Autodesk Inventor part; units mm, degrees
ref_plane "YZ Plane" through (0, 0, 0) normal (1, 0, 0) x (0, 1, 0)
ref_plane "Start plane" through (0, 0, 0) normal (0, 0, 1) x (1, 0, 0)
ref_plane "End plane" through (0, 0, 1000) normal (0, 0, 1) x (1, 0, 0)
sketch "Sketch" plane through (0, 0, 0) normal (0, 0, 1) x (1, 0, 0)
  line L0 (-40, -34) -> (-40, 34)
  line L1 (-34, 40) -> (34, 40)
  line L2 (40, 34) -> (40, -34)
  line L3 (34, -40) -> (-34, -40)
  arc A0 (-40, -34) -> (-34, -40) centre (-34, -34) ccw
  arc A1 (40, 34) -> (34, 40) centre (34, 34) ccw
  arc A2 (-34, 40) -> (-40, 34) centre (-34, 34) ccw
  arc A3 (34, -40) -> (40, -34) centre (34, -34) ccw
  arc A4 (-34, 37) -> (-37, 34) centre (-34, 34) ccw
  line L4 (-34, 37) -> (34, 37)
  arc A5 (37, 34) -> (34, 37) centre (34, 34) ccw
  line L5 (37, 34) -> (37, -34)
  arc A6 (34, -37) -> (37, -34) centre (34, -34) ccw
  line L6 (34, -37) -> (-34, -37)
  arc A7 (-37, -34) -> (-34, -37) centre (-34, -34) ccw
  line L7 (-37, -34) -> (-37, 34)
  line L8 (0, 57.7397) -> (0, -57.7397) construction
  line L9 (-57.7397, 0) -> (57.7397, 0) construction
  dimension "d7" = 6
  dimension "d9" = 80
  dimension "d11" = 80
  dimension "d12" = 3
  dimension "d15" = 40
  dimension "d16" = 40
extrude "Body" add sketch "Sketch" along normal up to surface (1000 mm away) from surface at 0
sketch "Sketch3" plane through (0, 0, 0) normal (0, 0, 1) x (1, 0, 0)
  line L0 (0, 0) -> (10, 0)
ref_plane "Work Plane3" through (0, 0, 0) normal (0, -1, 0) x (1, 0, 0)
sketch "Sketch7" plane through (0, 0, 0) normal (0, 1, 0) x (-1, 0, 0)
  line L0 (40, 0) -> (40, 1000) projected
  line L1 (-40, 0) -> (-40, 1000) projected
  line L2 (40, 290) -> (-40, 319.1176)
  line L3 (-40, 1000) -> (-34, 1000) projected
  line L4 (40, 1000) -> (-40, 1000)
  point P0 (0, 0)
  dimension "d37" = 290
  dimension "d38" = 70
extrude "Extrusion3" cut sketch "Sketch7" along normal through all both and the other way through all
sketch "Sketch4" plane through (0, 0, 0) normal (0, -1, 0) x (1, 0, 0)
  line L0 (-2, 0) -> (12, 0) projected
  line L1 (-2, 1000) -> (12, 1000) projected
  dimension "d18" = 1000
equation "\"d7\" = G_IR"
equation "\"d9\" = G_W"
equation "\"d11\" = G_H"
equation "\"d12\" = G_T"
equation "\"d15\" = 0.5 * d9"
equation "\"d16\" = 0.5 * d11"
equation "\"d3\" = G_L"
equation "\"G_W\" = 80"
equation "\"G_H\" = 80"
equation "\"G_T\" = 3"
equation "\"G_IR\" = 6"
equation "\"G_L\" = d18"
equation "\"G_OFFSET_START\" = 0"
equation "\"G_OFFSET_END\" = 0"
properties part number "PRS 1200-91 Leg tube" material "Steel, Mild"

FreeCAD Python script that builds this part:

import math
import FreeCAD as App
import Part
import Sketcher
Q = App.Units.Quantity

doc = App.newDocument("Part")
body = doc.addObject("PartDesign::Body", "Body")

# Sketch on XY plane
sketch1 = body.newObject("Sketcher::SketchObject", "Sketch")
sketch1.AttachmentSupport = (doc.getObject("XY_Plane"), [""])
sketch1.MapMode = "FlatFace"
sketch1.addGeometry(Part.LineSegment(App.Vector(-40, 34, 0), App.Vector(-40, -34, 0)), False)
sketch1.addGeometry(Part.ArcOfCircle(Part.Circle(App.Vector(-34, -34, 0), App.Vector(0, 0, 1), 6), math.radians(180), math.radians(270)), False)
sketch1.addGeometry(Part.LineSegment(App.Vector(-34, -40, 0), App.Vector(34, -40, 0)), False)
sketch1.addGeometry(Part.ArcOfCircle(Part.Circle(App.Vector(34, -34, 0), App.Vector(0, 0, 1), 6), math.radians(-90), math.radians(0)), False)
sketch1.addGeometry(Part.LineSegment(App.Vector(40, -34, 0), App.Vector(40, 34, 0)), False)
sketch1.addGeometry(Part.ArcOfCircle(Part.Circle(App.Vector(34, 34, 0), App.Vector(0, 0, 1), 6), math.radians(0), math.radians(90)), False)
sketch1.addGeometry(Part.LineSegment(App.Vector(34, 40, 0), App.Vector(-34, 40, 0)), False)
sketch1.addGeometry(Part.ArcOfCircle(Part.Circle(App.Vector(-34, 34, 0), App.Vector(0, 0, 1), 6), math.radians(90), math.radians(180)), False)
sketch1.addGeometry(Part.ArcOfCircle(Part.Circle(App.Vector(-34, 34, 0), App.Vector(0, 0, 1), 3), math.radians(90), math.radians(180)), False)
sketch1.addGeometry(Part.LineSegment(App.Vector(-34, 37, 0), App.Vector(34, 37, 0)), False)
sketch1.addGeometry(Part.ArcOfCircle(Part.Circle(App.Vector(34, 34, 0), App.Vector(0, 0, 1), 3), math.radians(0), math.radians(90)), False)
sketch1.addGeometry(Part.LineSegment(App.Vector(37, 34, 0), App.Vector(37, -34, 0)), False)
sketch1.addGeometry(Part.ArcOfCircle(Part.Circle(App.Vector(34, -34, 0), App.Vector(0, 0, 1), 3), math.radians(-90), math.radians(0)), False)
sketch1.addGeometry(Part.LineSegment(App.Vector(34, -37, 0), App.Vector(-34, -37, 0)), False)
sketch1.addGeometry(Part.ArcOfCircle(Part.Circle(App.Vector(-34, -34, 0), App.Vector(0, 0, 1), 3), math.radians(180), math.radians(270)), False)
sketch1.addGeometry(Part.LineSegment(App.Vector(-37, -34, 0), App.Vector(-37, 34, 0)), False)
sketch1.addConstraint(Sketcher.Constraint("Tangent", 0, 2, 1, 1))
sketch1.addConstraint(Sketcher.Constraint("Tangent", 1, 2, 2, 1))
sketch1.addConstraint(Sketcher.Constraint("Tangent", 2, 2, 3, 1))
sketch1.addConstraint(Sketcher.Constraint("Tangent", 3, 2, 4, 1))
sketch1.addConstraint(Sketcher.Constraint("Tangent", 4, 2, 5, 1))
sketch1.addConstraint(Sketcher.Constraint("Tangent", 5, 2, 6, 1))
sketch1.addConstraint(Sketcher.Constraint("Tangent", 6, 2, 7, 1))
sketch1.addConstraint(Sketcher.Constraint("Tangent", 7, 2, 0, 1))
sketch1.addConstraint(Sketcher.Constraint("Tangent", 8, 1, 9, 1))
sketch1.addConstraint(Sketcher.Constraint("Tangent", 9, 2, 10, 2))
sketch1.addConstraint(Sketcher.Constraint("Tangent", 10, 1, 11, 1))
sketch1.addConstraint(Sketcher.Constraint("Tangent", 11, 2, 12, 2))
sketch1.addConstraint(Sketcher.Constraint("Tangent", 12, 1, 13, 1))
sketch1.addConstraint(Sketcher.Constraint("Tangent", 13, 2, 14, 2))
sketch1.addConstraint(Sketcher.Constraint("Tangent", 14, 1, 15, 1))
sketch1.addConstraint(Sketcher.Constraint("Tangent", 15, 2, 8, 2))
sketch1.addConstraint(Sketcher.Constraint("Vertical", 0))
sketch1.addConstraint(Sketcher.Constraint("Horizontal", 2))
sketch1.addConstraint(Sketcher.Constraint("Vertical", 4))
sketch1.addConstraint(Sketcher.Constraint("Horizontal", 6))
sketch1.addConstraint(Sketcher.Constraint("Horizontal", 9))
sketch1.addConstraint(Sketcher.Constraint("Vertical", 11))
sketch1.addConstraint(Sketcher.Constraint("Horizontal", 13))
sketch1.addConstraint(Sketcher.Constraint("Vertical", 15))
sketch1.addConstraint(Sketcher.Constraint("Coincident", 8, 3, 7, 3))
sketch1.addConstraint(Sketcher.Constraint("Coincident", 10, 3, 5, 3))
sketch1.addConstraint(Sketcher.Constraint("Coincident", 12, 3, 3, 3))
sketch1.addConstraint(Sketcher.Constraint("Equal", 1, 3))
sketch1.addConstraint(Sketcher.Constraint("Equal", 3, 5))
sketch1.addConstraint(Sketcher.Constraint("Equal", 5, 7))
sketch1.addConstraint(Sketcher.Constraint("Equal", 12, 14))
sketch1.addConstraint(Sketcher.Constraint("Symmetric", 1, 3, 5, 3, -1, 1))
sketch1.addConstraint(Sketcher.Constraint("Equal", 13, 0))
sketch1.addConstraint(Sketcher.Constraint("Radius", 1, 6.0))
sketch1.addConstraint(Sketcher.Constraint("Radius", 8, 3.0))
sketch1.addConstraint(Sketcher.Constraint("DistanceX", 0, 2, -1, 1, 40.0))
pad1 = body.newObject("PartDesign::Pad", "Pad")
pad1.Profile = sketch1
pad1.Length = 1000

# Sketch on XZ plane
sketch2 = body.newObject("Sketcher::SketchObject", "Sketch001")
sketch2.AttachmentSupport = (doc.getObject("XZ_Plane"), [""])
sketch2.MapMode = "FlatFace"
sketch2.addGeometry(Part.LineSegment(App.Vector(40, 319.1176, 0), App.Vector(-40, 290, 0)), False)
sketch2.addGeometry(Part.LineSegment(App.Vector(-40, 290, 0), App.Vector(-40, 1000, 0)), False)
sketch2.addGeometry(Part.LineSegment(App.Vector(-40, 1000, 0), App.Vector(40, 1000, 0)), False)
sketch2.addGeometry(Part.LineSegment(App.Vector(40, 1000, 0), App.Vector(40, 319.1176, 0)), False)
sketch2.addConstraint(Sketcher.Constraint("Coincident", 0, 2, 1, 1))
sketch2.addConstraint(Sketcher.Constraint("Coincident", 1, 2, 2, 1))
sketch2.addConstraint(Sketcher.Constraint("Coincident", 2, 2, 3, 1))
sketch2.addConstraint(Sketcher.Constraint("Coincident", 3, 2, 0, 1))
sketch2.addConstraint(Sketcher.Constraint("Vertical", 1))
sketch2.addConstraint(Sketcher.Constraint("Horizontal", 2))
sketch2.addConstraint(Sketcher.Constraint("Vertical", 3))
sketch2.addConstraint(Sketcher.Constraint("DistanceY", -1, 1, 0, 2, 290.0))
sketch2.addConstraint(Sketcher.Constraint("DistanceX", 2, 1, 2, 2, 80.0))
sketch2.addConstraint(Sketcher.Constraint("DistanceY", 1, 1, 1, 2, 710.0))
sketch2.addConstraint(Sketcher.Constraint("Angle", 0, Q("-160 deg")))
sketch2.addConstraint(Sketcher.Constraint("DistanceX", 0, 2, -1, 1, 40.0))
pocket1 = body.newObject("PartDesign::Pocket", "Pocket")
pocket1.Profile = sketch2
pocket1.Type = "ThroughAll"
pocket1.Midplane = True

doc.recompute()
